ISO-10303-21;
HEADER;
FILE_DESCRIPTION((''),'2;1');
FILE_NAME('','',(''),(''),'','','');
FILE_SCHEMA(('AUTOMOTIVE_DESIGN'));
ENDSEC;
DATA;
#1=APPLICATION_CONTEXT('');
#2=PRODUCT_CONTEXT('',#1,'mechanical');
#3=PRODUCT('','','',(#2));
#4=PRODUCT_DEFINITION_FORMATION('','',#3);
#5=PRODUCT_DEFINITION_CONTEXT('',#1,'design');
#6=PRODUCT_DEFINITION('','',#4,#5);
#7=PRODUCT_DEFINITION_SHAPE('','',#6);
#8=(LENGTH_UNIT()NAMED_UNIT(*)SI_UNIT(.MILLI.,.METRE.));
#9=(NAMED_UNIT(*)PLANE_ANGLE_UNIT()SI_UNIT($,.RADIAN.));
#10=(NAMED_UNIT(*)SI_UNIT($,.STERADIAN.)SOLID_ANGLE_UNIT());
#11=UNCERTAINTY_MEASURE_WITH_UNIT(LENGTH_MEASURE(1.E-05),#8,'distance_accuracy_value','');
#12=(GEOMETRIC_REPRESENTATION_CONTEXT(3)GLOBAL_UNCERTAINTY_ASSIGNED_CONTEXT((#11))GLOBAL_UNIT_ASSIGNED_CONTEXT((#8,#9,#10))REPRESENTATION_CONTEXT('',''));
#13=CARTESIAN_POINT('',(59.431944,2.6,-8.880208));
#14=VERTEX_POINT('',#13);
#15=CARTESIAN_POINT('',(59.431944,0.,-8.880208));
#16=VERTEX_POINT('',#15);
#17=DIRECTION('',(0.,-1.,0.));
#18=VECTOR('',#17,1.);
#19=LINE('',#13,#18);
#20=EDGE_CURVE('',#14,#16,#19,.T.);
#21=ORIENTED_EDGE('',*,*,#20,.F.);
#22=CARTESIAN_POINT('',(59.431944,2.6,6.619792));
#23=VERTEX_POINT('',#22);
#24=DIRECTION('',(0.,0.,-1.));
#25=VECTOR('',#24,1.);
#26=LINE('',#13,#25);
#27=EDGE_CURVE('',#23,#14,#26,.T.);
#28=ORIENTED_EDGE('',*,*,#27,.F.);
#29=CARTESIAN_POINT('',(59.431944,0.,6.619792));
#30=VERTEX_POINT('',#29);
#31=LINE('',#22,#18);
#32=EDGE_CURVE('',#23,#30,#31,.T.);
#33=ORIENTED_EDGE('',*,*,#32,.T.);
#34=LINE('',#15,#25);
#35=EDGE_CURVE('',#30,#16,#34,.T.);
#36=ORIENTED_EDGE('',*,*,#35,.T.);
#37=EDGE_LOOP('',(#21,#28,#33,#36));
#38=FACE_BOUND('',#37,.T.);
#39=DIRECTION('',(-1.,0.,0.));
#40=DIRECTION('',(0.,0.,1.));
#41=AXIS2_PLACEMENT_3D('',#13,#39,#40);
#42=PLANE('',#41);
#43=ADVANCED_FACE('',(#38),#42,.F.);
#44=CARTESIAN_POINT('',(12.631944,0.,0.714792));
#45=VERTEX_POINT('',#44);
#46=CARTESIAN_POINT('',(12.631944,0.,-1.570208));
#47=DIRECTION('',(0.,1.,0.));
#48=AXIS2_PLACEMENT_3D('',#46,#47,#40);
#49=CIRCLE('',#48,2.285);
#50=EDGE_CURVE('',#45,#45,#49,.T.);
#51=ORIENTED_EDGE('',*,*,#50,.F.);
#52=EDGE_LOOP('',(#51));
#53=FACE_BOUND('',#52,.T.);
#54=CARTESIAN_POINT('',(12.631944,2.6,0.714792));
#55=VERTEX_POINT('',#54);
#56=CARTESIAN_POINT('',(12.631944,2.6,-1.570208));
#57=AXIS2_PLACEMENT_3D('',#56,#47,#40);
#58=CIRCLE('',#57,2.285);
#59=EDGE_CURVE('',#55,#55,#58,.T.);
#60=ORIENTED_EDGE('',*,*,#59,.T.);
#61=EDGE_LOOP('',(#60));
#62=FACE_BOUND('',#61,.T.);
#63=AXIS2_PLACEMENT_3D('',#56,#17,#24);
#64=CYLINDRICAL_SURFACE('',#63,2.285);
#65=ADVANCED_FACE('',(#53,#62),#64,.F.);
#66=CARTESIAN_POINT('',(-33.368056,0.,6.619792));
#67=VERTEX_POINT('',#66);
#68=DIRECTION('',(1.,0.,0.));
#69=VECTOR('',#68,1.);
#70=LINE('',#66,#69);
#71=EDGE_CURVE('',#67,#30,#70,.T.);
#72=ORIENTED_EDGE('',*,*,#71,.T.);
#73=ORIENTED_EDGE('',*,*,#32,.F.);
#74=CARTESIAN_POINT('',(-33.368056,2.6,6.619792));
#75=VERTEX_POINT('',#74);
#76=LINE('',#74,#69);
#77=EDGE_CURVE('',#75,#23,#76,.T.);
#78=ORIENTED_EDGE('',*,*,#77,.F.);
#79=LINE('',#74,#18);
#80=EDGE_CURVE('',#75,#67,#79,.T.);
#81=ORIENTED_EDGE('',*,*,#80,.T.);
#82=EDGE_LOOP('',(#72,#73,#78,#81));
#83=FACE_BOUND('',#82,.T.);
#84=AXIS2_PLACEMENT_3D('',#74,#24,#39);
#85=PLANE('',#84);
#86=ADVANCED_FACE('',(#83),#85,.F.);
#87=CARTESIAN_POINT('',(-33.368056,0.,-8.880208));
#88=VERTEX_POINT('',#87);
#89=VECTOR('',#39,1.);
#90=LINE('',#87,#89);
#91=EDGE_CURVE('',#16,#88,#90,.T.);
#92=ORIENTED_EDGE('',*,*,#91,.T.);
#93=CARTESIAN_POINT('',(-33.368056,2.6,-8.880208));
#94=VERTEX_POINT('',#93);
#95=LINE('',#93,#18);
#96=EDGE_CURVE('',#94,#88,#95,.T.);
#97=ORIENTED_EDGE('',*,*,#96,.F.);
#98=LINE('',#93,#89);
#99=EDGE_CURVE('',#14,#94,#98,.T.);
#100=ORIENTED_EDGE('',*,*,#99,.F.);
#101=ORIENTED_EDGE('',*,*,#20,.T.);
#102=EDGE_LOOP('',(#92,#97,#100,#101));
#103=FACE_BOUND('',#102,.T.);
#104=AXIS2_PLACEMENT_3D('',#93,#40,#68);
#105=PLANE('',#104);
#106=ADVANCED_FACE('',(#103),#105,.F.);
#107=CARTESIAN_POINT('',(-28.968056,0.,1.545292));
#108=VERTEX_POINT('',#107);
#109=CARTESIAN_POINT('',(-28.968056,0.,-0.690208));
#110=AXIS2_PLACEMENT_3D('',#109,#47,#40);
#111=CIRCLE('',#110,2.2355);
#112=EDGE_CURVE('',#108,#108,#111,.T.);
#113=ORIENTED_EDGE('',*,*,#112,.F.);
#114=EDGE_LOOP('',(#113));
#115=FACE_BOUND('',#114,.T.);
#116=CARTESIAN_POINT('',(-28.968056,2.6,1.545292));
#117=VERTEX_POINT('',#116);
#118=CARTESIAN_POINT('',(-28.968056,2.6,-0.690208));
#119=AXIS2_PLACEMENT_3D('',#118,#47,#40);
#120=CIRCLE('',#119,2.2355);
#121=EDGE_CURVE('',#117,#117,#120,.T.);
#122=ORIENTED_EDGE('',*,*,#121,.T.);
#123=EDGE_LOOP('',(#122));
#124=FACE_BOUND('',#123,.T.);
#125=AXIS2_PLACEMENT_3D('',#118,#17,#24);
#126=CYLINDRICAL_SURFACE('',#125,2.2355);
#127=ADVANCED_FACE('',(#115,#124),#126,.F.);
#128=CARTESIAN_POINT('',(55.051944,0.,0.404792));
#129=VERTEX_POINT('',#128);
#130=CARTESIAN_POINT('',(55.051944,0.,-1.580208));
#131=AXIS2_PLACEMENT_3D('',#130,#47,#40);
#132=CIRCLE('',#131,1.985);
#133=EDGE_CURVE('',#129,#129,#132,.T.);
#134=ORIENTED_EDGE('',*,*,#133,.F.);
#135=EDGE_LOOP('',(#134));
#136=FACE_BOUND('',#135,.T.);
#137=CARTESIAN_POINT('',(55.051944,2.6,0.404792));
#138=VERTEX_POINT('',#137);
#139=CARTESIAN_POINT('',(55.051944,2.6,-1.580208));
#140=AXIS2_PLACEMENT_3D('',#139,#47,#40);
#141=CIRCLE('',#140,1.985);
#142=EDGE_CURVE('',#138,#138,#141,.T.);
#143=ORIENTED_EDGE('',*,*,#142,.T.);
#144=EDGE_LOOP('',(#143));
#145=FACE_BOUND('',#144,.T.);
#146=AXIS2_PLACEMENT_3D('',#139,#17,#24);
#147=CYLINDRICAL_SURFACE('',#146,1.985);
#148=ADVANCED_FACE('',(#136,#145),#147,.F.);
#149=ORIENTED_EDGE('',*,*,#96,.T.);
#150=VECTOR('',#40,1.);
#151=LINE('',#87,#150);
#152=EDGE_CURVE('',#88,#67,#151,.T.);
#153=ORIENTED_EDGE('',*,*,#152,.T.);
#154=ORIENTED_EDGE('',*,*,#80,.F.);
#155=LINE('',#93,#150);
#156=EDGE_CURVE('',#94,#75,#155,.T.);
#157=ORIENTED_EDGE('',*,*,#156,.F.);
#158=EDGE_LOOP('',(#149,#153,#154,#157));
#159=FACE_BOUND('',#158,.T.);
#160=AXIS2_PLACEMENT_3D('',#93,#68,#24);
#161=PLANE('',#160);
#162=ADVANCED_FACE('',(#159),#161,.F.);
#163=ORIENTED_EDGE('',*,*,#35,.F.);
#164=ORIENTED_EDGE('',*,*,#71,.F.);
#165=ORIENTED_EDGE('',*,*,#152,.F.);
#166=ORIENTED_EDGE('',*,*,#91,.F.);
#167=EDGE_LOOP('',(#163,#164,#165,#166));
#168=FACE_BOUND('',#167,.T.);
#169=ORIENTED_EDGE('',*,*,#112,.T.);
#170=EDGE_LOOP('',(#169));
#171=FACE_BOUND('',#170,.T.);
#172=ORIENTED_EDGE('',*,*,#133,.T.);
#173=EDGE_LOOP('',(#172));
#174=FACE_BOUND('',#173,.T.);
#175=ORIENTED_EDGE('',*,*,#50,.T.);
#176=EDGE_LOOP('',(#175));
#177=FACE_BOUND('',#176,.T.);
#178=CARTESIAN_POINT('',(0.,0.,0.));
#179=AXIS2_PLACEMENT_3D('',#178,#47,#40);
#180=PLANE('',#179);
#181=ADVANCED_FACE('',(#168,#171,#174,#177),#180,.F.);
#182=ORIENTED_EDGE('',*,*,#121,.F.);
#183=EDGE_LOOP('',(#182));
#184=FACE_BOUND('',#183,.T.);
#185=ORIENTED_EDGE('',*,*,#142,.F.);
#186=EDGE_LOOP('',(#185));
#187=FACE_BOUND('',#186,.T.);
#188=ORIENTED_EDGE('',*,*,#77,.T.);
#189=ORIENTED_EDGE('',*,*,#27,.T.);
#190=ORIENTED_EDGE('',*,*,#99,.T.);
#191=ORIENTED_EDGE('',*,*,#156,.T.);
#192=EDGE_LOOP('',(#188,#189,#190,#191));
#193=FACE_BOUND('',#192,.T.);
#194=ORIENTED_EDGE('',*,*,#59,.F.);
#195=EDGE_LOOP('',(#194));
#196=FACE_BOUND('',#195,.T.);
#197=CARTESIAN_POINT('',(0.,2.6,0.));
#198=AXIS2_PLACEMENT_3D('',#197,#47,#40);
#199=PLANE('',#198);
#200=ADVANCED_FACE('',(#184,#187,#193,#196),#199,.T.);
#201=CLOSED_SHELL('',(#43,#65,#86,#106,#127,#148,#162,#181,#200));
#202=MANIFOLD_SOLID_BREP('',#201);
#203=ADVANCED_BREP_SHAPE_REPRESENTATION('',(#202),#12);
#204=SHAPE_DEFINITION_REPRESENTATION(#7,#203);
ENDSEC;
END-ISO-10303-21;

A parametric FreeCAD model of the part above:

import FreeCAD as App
import Part
import Sketcher
Q = App.Units.Quantity


def add_polygon(sketch, points):
    """Adds a closed chain of lines whose ends are joined by coincident constraints."""
    first, n = sketch.GeometryCount, len(points)
    for a, b in zip(points, points[1:] + points[:1]):
        sketch.addGeometry(Part.LineSegment(App.Vector(*a, 0), App.Vector(*b, 0)), False)
    for i in range(n):
        sketch.addConstraint(Sketcher.Constraint("Coincident", first + i, 2, first + (i + 1) % n, 1))

doc = App.newDocument("Part")
body = doc.addObject("PartDesign::Body", "Body")

sketch1 = body.newObject("Sketcher::SketchObject", "Sketch")
sketch1.AttachmentSupport = (doc.getObject("XZ_Plane"), [""])
sketch1.MapMode = "FlatFace"
add_polygon(sketch1, [(-33.4, -8.9), (-33.4, 6.6), (59.4, 6.6), (59.4, -8.9)])
sketch1.addGeometry(Part.Circle(App.Vector(-29, -0.7, 0), App.Vector(0, 0, 1), 2.2), False)
sketch1.addGeometry(Part.Circle(App.Vector(12.6, -1.6, 0), App.Vector(0, 0, 1), 2.3), False)
sketch1.addGeometry(Part.Circle(App.Vector(55.1, -1.6, 0), App.Vector(0, 0, 1), 2), False)
sketch1.addConstraint([
    Sketcher.Constraint("Vertical", 0),
    Sketcher.Constraint("Horizontal", 1),
    Sketcher.Constraint("Vertical", 2),
    Sketcher.Constraint("Horizontal", 3),
    Sketcher.Constraint("Diameter", 5, Q("4.57 mm")),
    Sketcher.Constraint("Diameter", 6, Q("3.97 mm")),
    Sketcher.Constraint("Diameter", 4, Q("4.471 mm")),
    Sketcher.Constraint("DistanceX", 1, 1, 1, 2, Q("92.8 mm")),
    Sketcher.Constraint("DistanceY", 0, 1, 0, 2, Q("15.5 mm")),
    Sketcher.Constraint("DistanceX", 0, 2, 5, 3, Q("46 mm")),
    Sketcher.Constraint("DistanceX", 4, 3, 5, 3, Q("41.6 mm")),
    Sketcher.Constraint("DistanceY", 6, 3, 0, 2, Q("8.2 mm")),
    Sketcher.Constraint("DistanceY", 5, 3, 4, 3, Q("0.88 mm")),
    Sketcher.Constraint("DistanceX", 5, 3, 6, 3, Q("42.42 mm")),
    Sketcher.Constraint("DistanceY", 6, 3, 5, 3, Q("0.01 mm")),
    Sketcher.Constraint("DistanceY", 4, 3, -1, 1, Q("0.690208 mm")),
    Sketcher.Constraint("DistanceX", 4, 3, -1, 1, Q("28.968056 mm")),
])
pad1 = body.newObject("PartDesign::Pad", "Pad")
pad1.Profile = sketch1
pad1.Length = 2.6
pad1.Reversed = True

doc.recompute()
